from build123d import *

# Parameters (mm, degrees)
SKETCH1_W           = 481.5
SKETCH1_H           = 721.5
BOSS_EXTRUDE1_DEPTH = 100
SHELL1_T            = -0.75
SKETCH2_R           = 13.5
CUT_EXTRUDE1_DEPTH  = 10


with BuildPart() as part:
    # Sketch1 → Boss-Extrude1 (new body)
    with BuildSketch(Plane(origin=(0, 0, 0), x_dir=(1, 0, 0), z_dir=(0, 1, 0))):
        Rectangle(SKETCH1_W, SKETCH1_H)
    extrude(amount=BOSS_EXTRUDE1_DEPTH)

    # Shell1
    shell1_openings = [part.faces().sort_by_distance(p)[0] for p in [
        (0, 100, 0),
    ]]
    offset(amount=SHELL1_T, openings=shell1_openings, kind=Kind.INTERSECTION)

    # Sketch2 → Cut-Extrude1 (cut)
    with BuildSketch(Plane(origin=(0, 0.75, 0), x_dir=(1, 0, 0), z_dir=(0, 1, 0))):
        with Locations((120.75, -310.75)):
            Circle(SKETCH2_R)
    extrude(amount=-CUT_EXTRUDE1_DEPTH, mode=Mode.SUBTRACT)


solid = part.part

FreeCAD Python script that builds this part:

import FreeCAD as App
import Part
import Sketcher
Q = App.Units.Quantity


def faces_at(feature, points):
    """Names of the faces that lie closest to the given points."""
    faces = feature.Shape.Faces
    near = lambda p: min(range(len(faces)), key=lambda i: faces[i].distToShape(Part.Vertex(*p))[0])
    return sorted({f"Face{near(p) + 1}" for p in points})

doc = App.newDocument("Part")
body = doc.addObject("PartDesign::Body", "Body")

# Sketch on XZ plane
sketch1 = body.newObject("Sketcher::SketchObject", "Sketch")
sketch1.AttachmentSupport = (doc.getObject("XZ_Plane"), [""])
sketch1.MapMode = "FlatFace"
sketch1.addGeometry(Part.LineSegment(App.Vector(-241, -361, 0), App.Vector(-241, 361, 0)), False)
sketch1.addGeometry(Part.LineSegment(App.Vector(-241, 361, 0), App.Vector(241, 361, 0)), False)
sketch1.addGeometry(Part.LineSegment(App.Vector(241, 361, 0), App.Vector(241, -361, 0)), False)
sketch1.addGeometry(Part.LineSegment(App.Vector(241, -361, 0), App.Vector(-241, -361, 0)), False)
sketch1.addConstraint(Sketcher.Constraint("Coincident", 0, 2, 1, 1))
sketch1.addConstraint(Sketcher.Constraint("Coincident", 1, 2, 2, 1))
sketch1.addConstraint(Sketcher.Constraint("Coincident", 2, 2, 3, 1))
sketch1.addConstraint(Sketcher.Constraint("Coincident", 3, 2, 0, 1))
sketch1.addConstraint(Sketcher.Constraint("Vertical", 0))
sketch1.addConstraint(Sketcher.Constraint("Horizontal", 1))
sketch1.addConstraint(Sketcher.Constraint("Vertical", 2))
sketch1.addConstraint(Sketcher.Constraint("Horizontal", 3))
sketch1.addConstraint(Sketcher.Constraint("Symmetric", 0, 2, 2, 2, -1, 1))
sketch1.addConstraint(Sketcher.Constraint("DistanceX", 1, 1, 1, 2, Q("481.5 mm")))
sketch1.addConstraint(Sketcher.Constraint("DistanceY", 0, 1, 0, 2, Q("721.5 mm")))
pad1 = body.newObject("PartDesign::Pad", "Pad")
pad1.Profile = sketch1
pad1.Length = 100
pad1.Reversed = True
doc.recompute()

thickness = body.newObject("PartDesign::Thickness", "Thickness")
thickness.Base = (pad1, faces_at(pad1, [(0, 100, 0)]))
thickness.Value = 0.75
thickness.Reversed = True
thickness.Join = "Intersection"

# Sketch on XZ plane
sketch2 = body.newObject("Sketcher::SketchObject", "Sketch001")
sketch2.AttachmentSupport = (doc.getObject("XZ_Plane"), [""])
sketch2.MapMode = "FlatFace"
sketch2.AttachmentOffset = App.Placement(App.Vector(0, 0, -0.75), App.Rotation())
sketch2.addGeometry(Part.Circle(App.Vector(121, 311, 0), App.Vector(0, 0, 1), 14), False)
sketch2.addConstraint(Sketcher.Constraint("Diameter", 0, Q("27 mm")))
sketch2.addConstraint(Sketcher.Constraint("DistanceX", -1, 1, 0, 3, Q("120.75 mm")))
sketch2.addConstraint(Sketcher.Constraint("DistanceY", -1, 1, 0, 3, Q("310.75 mm")))
pocket1 = body.newObject("PartDesign::Pocket", "Pocket")
pocket1.Profile = sketch2
pocket1.Length = 10
pocket1.Reversed = True

doc.recompute()
